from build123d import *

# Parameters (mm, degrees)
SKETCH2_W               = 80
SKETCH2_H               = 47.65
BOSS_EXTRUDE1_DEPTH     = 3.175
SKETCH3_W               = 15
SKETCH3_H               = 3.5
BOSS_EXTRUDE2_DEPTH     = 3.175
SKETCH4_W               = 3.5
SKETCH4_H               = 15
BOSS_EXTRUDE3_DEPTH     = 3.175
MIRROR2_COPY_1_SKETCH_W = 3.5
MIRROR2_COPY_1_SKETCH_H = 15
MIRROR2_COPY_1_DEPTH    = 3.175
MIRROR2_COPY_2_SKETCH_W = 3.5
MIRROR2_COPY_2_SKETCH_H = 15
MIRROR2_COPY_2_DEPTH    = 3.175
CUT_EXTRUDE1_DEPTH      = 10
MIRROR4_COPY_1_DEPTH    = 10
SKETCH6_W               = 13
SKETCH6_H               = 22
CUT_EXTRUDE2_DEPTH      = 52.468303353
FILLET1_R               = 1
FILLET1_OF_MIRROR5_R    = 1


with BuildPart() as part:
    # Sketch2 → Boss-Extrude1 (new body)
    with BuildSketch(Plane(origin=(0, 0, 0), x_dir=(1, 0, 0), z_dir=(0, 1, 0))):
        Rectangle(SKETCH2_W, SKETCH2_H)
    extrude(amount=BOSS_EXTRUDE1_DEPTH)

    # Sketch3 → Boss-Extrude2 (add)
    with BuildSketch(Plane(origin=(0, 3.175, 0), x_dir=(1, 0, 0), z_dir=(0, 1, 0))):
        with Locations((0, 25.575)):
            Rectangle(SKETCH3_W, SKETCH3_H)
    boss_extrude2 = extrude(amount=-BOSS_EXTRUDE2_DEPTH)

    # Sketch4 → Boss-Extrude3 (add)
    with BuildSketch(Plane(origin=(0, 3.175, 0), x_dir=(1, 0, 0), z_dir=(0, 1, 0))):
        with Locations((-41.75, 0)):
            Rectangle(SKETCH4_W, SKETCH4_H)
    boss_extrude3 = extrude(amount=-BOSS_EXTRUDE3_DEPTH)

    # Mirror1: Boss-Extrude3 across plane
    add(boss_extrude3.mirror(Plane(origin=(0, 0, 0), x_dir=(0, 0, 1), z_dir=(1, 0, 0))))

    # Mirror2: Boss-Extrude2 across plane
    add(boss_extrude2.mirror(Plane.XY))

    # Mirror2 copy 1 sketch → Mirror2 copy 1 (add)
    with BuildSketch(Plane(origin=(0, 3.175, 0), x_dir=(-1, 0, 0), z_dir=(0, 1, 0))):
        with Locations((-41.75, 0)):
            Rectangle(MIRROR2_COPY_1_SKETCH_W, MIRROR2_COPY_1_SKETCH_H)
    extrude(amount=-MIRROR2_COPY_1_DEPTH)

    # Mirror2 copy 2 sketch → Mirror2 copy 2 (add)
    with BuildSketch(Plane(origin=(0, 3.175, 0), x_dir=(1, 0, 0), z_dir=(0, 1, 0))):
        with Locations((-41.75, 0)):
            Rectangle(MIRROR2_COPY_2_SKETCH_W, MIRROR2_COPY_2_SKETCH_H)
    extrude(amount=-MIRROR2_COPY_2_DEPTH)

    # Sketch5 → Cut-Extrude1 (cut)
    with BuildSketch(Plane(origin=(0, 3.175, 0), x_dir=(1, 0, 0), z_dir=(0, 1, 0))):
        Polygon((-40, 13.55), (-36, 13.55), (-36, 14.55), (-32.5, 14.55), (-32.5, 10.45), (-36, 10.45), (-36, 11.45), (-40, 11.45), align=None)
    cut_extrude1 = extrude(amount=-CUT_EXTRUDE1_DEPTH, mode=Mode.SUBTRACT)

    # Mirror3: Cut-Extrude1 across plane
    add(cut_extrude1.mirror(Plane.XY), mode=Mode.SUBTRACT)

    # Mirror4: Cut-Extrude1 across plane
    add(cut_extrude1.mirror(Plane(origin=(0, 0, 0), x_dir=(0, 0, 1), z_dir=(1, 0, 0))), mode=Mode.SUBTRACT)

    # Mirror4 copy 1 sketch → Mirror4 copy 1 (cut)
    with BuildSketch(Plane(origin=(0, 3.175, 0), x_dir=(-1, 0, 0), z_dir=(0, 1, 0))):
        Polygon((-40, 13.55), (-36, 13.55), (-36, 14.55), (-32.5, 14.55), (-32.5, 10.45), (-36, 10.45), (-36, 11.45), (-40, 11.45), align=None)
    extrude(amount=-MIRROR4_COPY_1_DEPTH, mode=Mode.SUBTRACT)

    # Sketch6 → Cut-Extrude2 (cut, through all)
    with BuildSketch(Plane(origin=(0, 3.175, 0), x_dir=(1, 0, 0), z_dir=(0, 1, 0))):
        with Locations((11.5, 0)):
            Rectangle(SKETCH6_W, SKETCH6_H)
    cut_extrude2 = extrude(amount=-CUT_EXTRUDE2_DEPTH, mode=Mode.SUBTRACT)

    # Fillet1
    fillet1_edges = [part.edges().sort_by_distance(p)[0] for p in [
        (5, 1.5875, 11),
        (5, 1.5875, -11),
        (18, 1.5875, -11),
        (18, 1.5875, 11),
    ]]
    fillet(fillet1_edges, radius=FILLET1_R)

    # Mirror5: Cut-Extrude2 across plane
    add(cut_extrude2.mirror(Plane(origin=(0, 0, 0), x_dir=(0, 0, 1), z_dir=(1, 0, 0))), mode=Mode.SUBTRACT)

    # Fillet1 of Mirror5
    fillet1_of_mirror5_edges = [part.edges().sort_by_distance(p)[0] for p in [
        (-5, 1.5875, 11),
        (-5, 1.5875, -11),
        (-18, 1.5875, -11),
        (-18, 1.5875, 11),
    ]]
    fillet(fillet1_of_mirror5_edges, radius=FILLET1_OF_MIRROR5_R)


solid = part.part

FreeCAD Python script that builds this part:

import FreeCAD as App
import Part
import Sketcher
Q = App.Units.Quantity


def edges_at(feature, points):
    """Names of the edges that pass closest to the given points."""
    edges = feature.Shape.Edges
    near = lambda p: min(range(len(edges)), key=lambda i: edges[i].distToShape(Part.Vertex(*p))[0])
    return sorted({f"Edge{near(p) + 1}" for p in points})


def add_polygon(sketch, points):
    """Adds a closed chain of lines whose ends are joined by coincident constraints."""
    first, n = sketch.GeometryCount, len(points)
    for a, b in zip(points, points[1:] + points[:1]):
        sketch.addGeometry(Part.LineSegment(App.Vector(*a, 0), App.Vector(*b, 0)), False)
    for i in range(n):
        sketch.addConstraint(Sketcher.Constraint("Coincident", first + i, 2, first + (i + 1) % n, 1))

doc = App.newDocument("Part")
params = doc.addObject("Spreadsheet::Sheet", "Params")
for row, (alias, value) in enumerate([
    ("sketch1_width", "80 mm"),
    ("sketch1_height", "47.65 mm"),
    ("pad1_length", "3.175 mm"),
    ("sketch2_width", "15 mm"),
    ("sketch2_height", "3.5 mm"),
    ("pad2_length", "3.175 mm"),
    ("sketch3_height", "15 mm"),
    ("sketch3_width", "3.5 mm"),
    ("pad3_length", "3.175 mm"),
    ("sketch4_height", "15 mm"),
    ("sketch4_width", "3.5 mm"),
    ("pad4_length", "3.175 mm"),
    ("sketch5_height", "15 mm"),
    ("sketch5_width", "3.5 mm"),
    ("pad5_length", "3.175 mm"),
    ("sketch6_width", "4 mm"),
    ("sketch6_height", "1 mm"),
    ("sketch6_width2", "3.5 mm"),
    ("sketch6_height2", "2.1 mm"),
    ("pocket1_length", "10 mm"),
    ("sketch7_width", "4 mm"),
    ("sketch7_height", "1 mm"),
    ("sketch7_width2", "3.5 mm"),
    ("sketch7_height2", "2.1 mm"),
    ("pocket2_length", "10 mm"),
    ("sketch8_width", "13 mm"),
    ("sketch8_height", "22 mm"),
    ("fillet_radius", "1 mm"),
    ("fillet2_radius", "1 mm"),
], start=1):
    params.set(f"A{row}", alias)
    params.set(f"B{row}", "=" + value)
    params.setAlias(f"B{row}", alias)

body = doc.addObject("PartDesign::Body", "Body")

# Sketch on XZ plane
sketch1 = doc.addObject("Sketcher::SketchObject", "Sketch")
body.addObject(sketch1)
sketch1.AttachmentSupport = (doc.XZ_Plane, [""])
sketch1.MapMode = "FlatFace"
add_polygon(sketch1, [(-40, -24), (-40, 24), (40, 24), (40, -24)])  # lines 0-3
sketch1.addConstraint(Sketcher.Constraint("Vertical", 0))
sketch1.addConstraint(Sketcher.Constraint("Horizontal", 1))
sketch1.addConstraint(Sketcher.Constraint("Vertical", 2))
sketch1.addConstraint(Sketcher.Constraint("Horizontal", 3))
sketch1.addConstraint(Sketcher.Constraint("Symmetric", 0, 2, 2, 2, -1, 1))
sketch1.addConstraint(Sketcher.Constraint("DistanceX", 1, 1, 1, 2, Q("80 mm")))
sketch1.addConstraint(Sketcher.Constraint("DistanceY", 0, 1, 0, 2, Q("47.65 mm")))
sketch1.setExpression("Constraints[9]", "Params.sketch1_width")
sketch1.setExpression("Constraints[10]", "Params.sketch1_height")
pad1 = doc.addObject("PartDesign::Pad", "Pad")
body.addObject(pad1)
pad1.Profile = sketch1
pad1.setExpression("Length", "Params.pad1_length")
pad1.Reversed = True

# Sketch on XZ plane
sketch2 = doc.addObject("Sketcher::SketchObject", "Sketch001")
body.addObject(sketch2)
sketch2.AttachmentSupport = (doc.XZ_Plane, [""])
sketch2.MapMode = "FlatFace"
sketch2.AttachmentOffset = App.Placement(App.Vector(0, 0, -3.175), App.Rotation())
add_polygon(sketch2, [(-7.5, -27.3), (-7.5, -23.8), (7.5, -23.8), (7.5, -27.3)])  # lines 0-3
sketch2.addConstraint(Sketcher.Constraint("Vertical", 0))
sketch2.addConstraint(Sketcher.Constraint("Horizontal", 1))
sketch2.addConstraint(Sketcher.Constraint("Vertical", 2))
sketch2.addConstraint(Sketcher.Constraint("Horizontal", 3))
sketch2.addConstraint(Sketcher.Constraint("DistanceX", 1, 1, 1, 2, Q("15 mm")))
sketch2.addConstraint(Sketcher.Constraint("DistanceY", 0, 1, 0, 2, Q("3.5 mm")))
sketch2.addConstraint(Sketcher.Constraint("DistanceX", 0, 2, -1, 1, Q("7.5 mm")))
sketch2.addConstraint(Sketcher.Constraint("DistanceY", 0, 2, -1, 1, Q("23.825 mm")))
sketch2.setExpression("Constraints[8]", "Params.sketch2_width")
sketch2.setExpression("Constraints[9]", "Params.sketch2_height")
pad2 = doc.addObject("PartDesign::Pad", "Pad001")
body.addObject(pad2)
pad2.Profile = sketch2
pad2.setExpression("Length", "Params.pad2_length")

# Sketch on XZ plane
sketch3 = doc.addObject("Sketcher::SketchObject", "Sketch002")
body.addObject(sketch3)
sketch3.AttachmentSupport = (doc.XZ_Plane, [""])
sketch3.MapMode = "FlatFace"
sketch3.AttachmentOffset = App.Placement(App.Vector(0, 0, -3.175), App.Rotation())
add_polygon(sketch3, [(-43.5, -7.5), (-43.5, 7.5), (-40, 7.5), (-40, -7.5)])  # lines 0-3
sketch3.addConstraint(Sketcher.Constraint("Vertical", 0))
sketch3.addConstraint(Sketcher.Constraint("Horizontal", 1))
sketch3.addConstraint(Sketcher.Constraint("Vertical", 2))
sketch3.addConstraint(Sketcher.Constraint("Horizontal", 3))
sketch3.addConstraint(Sketcher.Constraint("DistanceY", 0, 1, 0, 2, Q("15 mm")))
sketch3.addConstraint(Sketcher.Constraint("DistanceX", 1, 1, 1, 2, Q("3.5 mm")))
sketch3.addConstraint(Sketcher.Constraint("DistanceX", 1, 2, -1, 1, Q("40 mm")))
sketch3.addConstraint(Sketcher.Constraint("DistanceY", -1, 1, 0, 2, Q("7.5 mm")))
sketch3.setExpression("Constraints[8]", "Params.sketch3_height")
sketch3.setExpression("Constraints[9]", "Params.sketch3_width")
pad3 = doc.addObject("PartDesign::Pad", "Pad002")
body.addObject(pad3)
pad3.Profile = sketch3
pad3.setExpression("Length", "Params.pad3_length")
doc.recompute()

mirrored = doc.addObject("PartDesign::Mirrored", "Mirrored")
body.addObject(mirrored)
mirrored.Originals = [pad3]
mirrored.MirrorPlane = (doc.YZ_Plane, [""])
body.Tip = mirrored
doc.recompute()

mirrored2 = doc.addObject("PartDesign::Mirrored", "Mirrored001")
body.addObject(mirrored2)
mirrored2.Originals = [pad2]
mirrored2.MirrorPlane = (doc.XY_Plane, [""])
body.Tip = mirrored2

# Sketch on XZ plane
sketch4 = doc.addObject("Sketcher::SketchObject", "Sketch003")
body.addObject(sketch4)
sketch4.AttachmentSupport = (doc.XZ_Plane, [""])
sketch4.MapMode = "FlatFace"
sketch4.AttachmentOffset = App.Placement(App.Vector(0, 0, -3.175), App.Rotation())
add_polygon(sketch4, [(43.5, 7.5), (43.5, -7.5), (40, -7.5), (40, 7.5)])  # lines 0-3
sketch4.addConstraint(Sketcher.Constraint("Vertical", 0))
sketch4.addConstraint(Sketcher.Constraint("Horizontal", 1))
sketch4.addConstraint(Sketcher.Constraint("Vertical", 2))
sketch4.addConstraint(Sketcher.Constraint("Horizontal", 3))
sketch4.addConstraint(Sketcher.Constraint("DistanceY", 0, 2, 0, 1, Q("15 mm")))
sketch4.addConstraint(Sketcher.Constraint("DistanceX", 1, 2, 1, 1, Q("3.5 mm")))
sketch4.addConstraint(Sketcher.Constraint("DistanceX", -1, 1, 1, 2, Q("40 mm")))
sketch4.addConstraint(Sketcher.Constraint("DistanceY", 0, 2, -1, 1, Q("7.5 mm")))
sketch4.setExpression("Constraints[8]", "Params.sketch4_height")
sketch4.setExpression("Constraints[9]", "Params.sketch4_width")
pad4 = doc.addObject("PartDesign::Pad", "Pad003")
body.addObject(pad4)
pad4.Profile = sketch4
pad4.setExpression("Length", "Params.pad4_length")

# Sketch on XZ plane
sketch5 = doc.addObject("Sketcher::SketchObject", "Sketch004")
body.addObject(sketch5)
sketch5.AttachmentSupport = (doc.XZ_Plane, [""])
sketch5.MapMode = "FlatFace"
sketch5.AttachmentOffset = App.Placement(App.Vector(0, 0, -3.175), App.Rotation())
add_polygon(sketch5, [(-43.5, -7.5), (-43.5, 7.5), (-40, 7.5), (-40, -7.5)])  # lines 0-3
sketch5.addConstraint(Sketcher.Constraint("Vertical", 0))
sketch5.addConstraint(Sketcher.Constraint("Horizontal", 1))
sketch5.addConstraint(Sketcher.Constraint("Vertical", 2))
sketch5.addConstraint(Sketcher.Constraint("Horizontal", 3))
sketch5.addConstraint(Sketcher.Constraint("DistanceY", 0, 1, 0, 2, Q("15 mm")))
sketch5.addConstraint(Sketcher.Constraint("DistanceX", 1, 1, 1, 2, Q("3.5 mm")))
sketch5.addConstraint(Sketcher.Constraint("DistanceX", 1, 2, -1, 1, Q("40 mm")))
sketch5.addConstraint(Sketcher.Constraint("DistanceY", -1, 1, 0, 2, Q("7.5 mm")))
sketch5.setExpression("Constraints[8]", "Params.sketch5_height")
sketch5.setExpression("Constraints[9]", "Params.sketch5_width")
pad5 = doc.addObject("PartDesign::Pad", "Pad004")
body.addObject(pad5)
pad5.Profile = sketch5
pad5.setExpression("Length", "Params.pad5_length")

# Sketch on XZ plane
sketch6 = doc.addObject("Sketcher::SketchObject", "Sketch005")
body.addObject(sketch6)
sketch6.AttachmentSupport = (doc.XZ_Plane, [""])
sketch6.MapMode = "FlatFace"
sketch6.AttachmentOffset = App.Placement(App.Vector(0, 0, -3.175), App.Rotation())
add_polygon(sketch6, [(-36, -13.6), (-40, -13.6), (-40, -11.4), (-36, -11.4), (-36, -10.4), (-32.5, -10.4), (-32.5, -14.6), (-36, -14.6)])  # lines 0-7
sketch6.addConstraint(Sketcher.Constraint("Horizontal", 0))
sketch6.addConstraint(Sketcher.Constraint("Vertical", 1))
sketch6.addConstraint(Sketcher.Constraint("Horizontal", 2))
sketch6.addConstraint(Sketcher.Constraint("Vertical", 3))
sketch6.addConstraint(Sketcher.Constraint("Horizontal", 4))
sketch6.addConstraint(Sketcher.Constraint("Vertical", 5))
sketch6.addConstraint(Sketcher.Constraint("Horizontal", 6))
sketch6.addConstraint(Sketcher.Constraint("Vertical", 7))
sketch6.addConstraint(Sketcher.Constraint("Vertical", 3, 2, 6, 2))
sketch6.addConstraint(Sketcher.Constraint("Equal", 3, 7))
sketch6.addConstraint(Sketcher.Constraint("DistanceX", 0, 2, 0, 1, Q("4 mm")))
sketch6.addConstraint(Sketcher.Constraint("DistanceY", 3, 1, 3, 2, Q("1 mm")))
sketch6.addConstraint(Sketcher.Constraint("DistanceX", 4, 1, 4, 2, Q("3.5 mm")))
sketch6.addConstraint(Sketcher.Constraint("DistanceY", 1, 1, 1, 2, Q("2.1 mm")))
sketch6.addConstraint(Sketcher.Constraint("DistanceX", 0, 2, -1, 1, Q("40 mm")))
sketch6.addConstraint(Sketcher.Constraint("DistanceY", 0, 2, -1, 1, Q("13.55 mm")))
sketch6.setExpression("Constraints[18]", "Params.sketch6_width")
sketch6.setExpression("Constraints[19]", "Params.sketch6_height")
sketch6.setExpression("Constraints[20]", "Params.sketch6_width2")
sketch6.setExpression("Constraints[21]", "Params.sketch6_height2")
pocket1 = doc.addObject("PartDesign::Pocket", "Pocket")
body.addObject(pocket1)
pocket1.Profile = sketch6
pocket1.setExpression("Length", "Params.pocket1_length")
pocket1.Reversed = True
doc.recompute()

mirrored3 = doc.addObject("PartDesign::Mirrored", "Mirrored002")
body.addObject(mirrored3)
mirrored3.Originals = [pocket1]
mirrored3.MirrorPlane = (doc.XY_Plane, [""])
body.Tip = mirrored3
doc.recompute()

mirrored4 = doc.addObject("PartDesign::Mirrored", "Mirrored003")
body.addObject(mirrored4)
mirrored4.Originals = [pocket1]
mirrored4.MirrorPlane = (doc.YZ_Plane, [""])
body.Tip = mirrored4

# Sketch on XZ plane
sketch7 = doc.addObject("Sketcher::SketchObject", "Sketch006")
body.addObject(sketch7)
sketch7.AttachmentSupport = (doc.XZ_Plane, [""])
sketch7.MapMode = "FlatFace"
sketch7.AttachmentOffset = App.Placement(App.Vector(0, 0, -3.175), App.Rotation())
add_polygon(sketch7, [(36, 13.6), (40, 13.6), (40, 11.4), (36, 11.4), (36, 10.4), (32.5, 10.4), (32.5, 14.6), (36, 14.6)])  # lines 0-7
sketch7.addConstraint(Sketcher.Constraint("Horizontal", 0))
sketch7.addConstraint(Sketcher.Constraint("Vertical", 1))
sketch7.addConstraint(Sketcher.Constraint("Horizontal", 2))
sketch7.addConstraint(Sketcher.Constraint("Vertical", 3))
sketch7.addConstraint(Sketcher.Constraint("Horizontal", 4))
sketch7.addConstraint(Sketcher.Constraint("Vertical", 5))
sketch7.addConstraint(Sketcher.Constraint("Horizontal", 6))
sketch7.addConstraint(Sketcher.Constraint("Vertical", 7))
sketch7.addConstraint(Sketcher.Constraint("Vertical", 3, 2, 6, 2))
sketch7.addConstraint(Sketcher.Constraint("Equal", 3, 7))
sketch7.addConstraint(Sketcher.Constraint("DistanceX", 0, 1, 0, 2, Q("4 mm")))
sketch7.addConstraint(Sketcher.Constraint("DistanceY", 3, 2, 3, 1, Q("1 mm")))
sketch7.addConstraint(Sketcher.Constraint("DistanceX", 4, 2, 4, 1, Q("3.5 mm")))
sketch7.addConstraint(Sketcher.Constraint("DistanceY", 1, 2, 1, 1, Q("2.1 mm")))
sketch7.addConstraint(Sketcher.Constraint("DistanceX", -1, 1, 0, 2, Q("40 mm")))
sketch7.addConstraint(Sketcher.Constraint("DistanceY", -1, 1, 0, 2, Q("13.55 mm")))
sketch7.setExpression("Constraints[18]", "Params.sketch7_width")
sketch7.setExpression("Constraints[19]", "Params.sketch7_height")
sketch7.setExpression("Constraints[20]", "Params.sketch7_width2")
sketch7.setExpression("Constraints[21]", "Params.sketch7_height2")
pocket2 = doc.addObject("PartDesign::Pocket", "Pocket001")
body.addObject(pocket2)
pocket2.Profile = sketch7
pocket2.setExpression("Length", "Params.pocket2_length")
pocket2.Reversed = True

# Sketch on XZ plane
sketch8 = doc.addObject("Sketcher::SketchObject", "Sketch007")
body.addObject(sketch8)
sketch8.AttachmentSupport = (doc.XZ_Plane, [""])
sketch8.MapMode = "FlatFace"
sketch8.AttachmentOffset = App.Placement(App.Vector(0, 0, -3.175), App.Rotation())
add_polygon(sketch8, [(5, -11), (5, 11), (18, 11), (18, -11)])  # lines 0-3
sketch8.addConstraint(Sketcher.Constraint("Vertical", 0))
sketch8.addConstraint(Sketcher.Constraint("Horizontal", 1))
sketch8.addConstraint(Sketcher.Constraint("Vertical", 2))
sketch8.addConstraint(Sketcher.Constraint("Horizontal", 3))
sketch8.addConstraint(Sketcher.Constraint("DistanceX", 1, 1, 1, 2, Q("13 mm")))
sketch8.addConstraint(Sketcher.Constraint("DistanceY", 0, 1, 0, 2, Q("22 mm")))
sketch8.addConstraint(Sketcher.Constraint("DistanceX", -1, 1, 0, 2, Q("5 mm")))
sketch8.addConstraint(Sketcher.Constraint("DistanceY", -1, 1, 0, 2, Q("11 mm")))
sketch8.setExpression("Constraints[8]", "Params.sketch8_width")
sketch8.setExpression("Constraints[9]", "Params.sketch8_height")
pocket3 = doc.addObject("PartDesign::Pocket", "Pocket002")
body.addObject(pocket3)
pocket3.Profile = sketch8
pocket3.Type = "ThroughAll"
pocket3.Reversed = True
doc.recompute()

fillet = doc.addObject("PartDesign::Fillet", "Fillet")
body.addObject(fillet)
fillet.Base = (pocket3, edges_at(pocket3, [
    (5, 1.587, 11),
    (5, 1.587, -11),
    (18, 1.587, -11),
    (18, 1.587, 11),
]))
fillet.setExpression("Radius", "Params.fillet_radius")
doc.recompute()

mirrored5 = doc.addObject("PartDesign::Mirrored", "Mirrored004")
body.addObject(mirrored5)
mirrored5.Originals = [pocket3]
mirrored5.MirrorPlane = (doc.YZ_Plane, [""])
body.Tip = mirrored5
doc.recompute()

fillet2 = doc.addObject("PartDesign::Fillet", "Fillet001")
body.addObject(fillet2)
fillet2.Base = (mirrored5, edges_at(mirrored5, [
    (-5, 1.587, 11),
    (-5, 1.587, -11),
    (-18, 1.587, -11),
    (-18, 1.587, 11),
]))
fillet2.setExpression("Radius", "Params.fillet2_radius")

doc.recompute()
